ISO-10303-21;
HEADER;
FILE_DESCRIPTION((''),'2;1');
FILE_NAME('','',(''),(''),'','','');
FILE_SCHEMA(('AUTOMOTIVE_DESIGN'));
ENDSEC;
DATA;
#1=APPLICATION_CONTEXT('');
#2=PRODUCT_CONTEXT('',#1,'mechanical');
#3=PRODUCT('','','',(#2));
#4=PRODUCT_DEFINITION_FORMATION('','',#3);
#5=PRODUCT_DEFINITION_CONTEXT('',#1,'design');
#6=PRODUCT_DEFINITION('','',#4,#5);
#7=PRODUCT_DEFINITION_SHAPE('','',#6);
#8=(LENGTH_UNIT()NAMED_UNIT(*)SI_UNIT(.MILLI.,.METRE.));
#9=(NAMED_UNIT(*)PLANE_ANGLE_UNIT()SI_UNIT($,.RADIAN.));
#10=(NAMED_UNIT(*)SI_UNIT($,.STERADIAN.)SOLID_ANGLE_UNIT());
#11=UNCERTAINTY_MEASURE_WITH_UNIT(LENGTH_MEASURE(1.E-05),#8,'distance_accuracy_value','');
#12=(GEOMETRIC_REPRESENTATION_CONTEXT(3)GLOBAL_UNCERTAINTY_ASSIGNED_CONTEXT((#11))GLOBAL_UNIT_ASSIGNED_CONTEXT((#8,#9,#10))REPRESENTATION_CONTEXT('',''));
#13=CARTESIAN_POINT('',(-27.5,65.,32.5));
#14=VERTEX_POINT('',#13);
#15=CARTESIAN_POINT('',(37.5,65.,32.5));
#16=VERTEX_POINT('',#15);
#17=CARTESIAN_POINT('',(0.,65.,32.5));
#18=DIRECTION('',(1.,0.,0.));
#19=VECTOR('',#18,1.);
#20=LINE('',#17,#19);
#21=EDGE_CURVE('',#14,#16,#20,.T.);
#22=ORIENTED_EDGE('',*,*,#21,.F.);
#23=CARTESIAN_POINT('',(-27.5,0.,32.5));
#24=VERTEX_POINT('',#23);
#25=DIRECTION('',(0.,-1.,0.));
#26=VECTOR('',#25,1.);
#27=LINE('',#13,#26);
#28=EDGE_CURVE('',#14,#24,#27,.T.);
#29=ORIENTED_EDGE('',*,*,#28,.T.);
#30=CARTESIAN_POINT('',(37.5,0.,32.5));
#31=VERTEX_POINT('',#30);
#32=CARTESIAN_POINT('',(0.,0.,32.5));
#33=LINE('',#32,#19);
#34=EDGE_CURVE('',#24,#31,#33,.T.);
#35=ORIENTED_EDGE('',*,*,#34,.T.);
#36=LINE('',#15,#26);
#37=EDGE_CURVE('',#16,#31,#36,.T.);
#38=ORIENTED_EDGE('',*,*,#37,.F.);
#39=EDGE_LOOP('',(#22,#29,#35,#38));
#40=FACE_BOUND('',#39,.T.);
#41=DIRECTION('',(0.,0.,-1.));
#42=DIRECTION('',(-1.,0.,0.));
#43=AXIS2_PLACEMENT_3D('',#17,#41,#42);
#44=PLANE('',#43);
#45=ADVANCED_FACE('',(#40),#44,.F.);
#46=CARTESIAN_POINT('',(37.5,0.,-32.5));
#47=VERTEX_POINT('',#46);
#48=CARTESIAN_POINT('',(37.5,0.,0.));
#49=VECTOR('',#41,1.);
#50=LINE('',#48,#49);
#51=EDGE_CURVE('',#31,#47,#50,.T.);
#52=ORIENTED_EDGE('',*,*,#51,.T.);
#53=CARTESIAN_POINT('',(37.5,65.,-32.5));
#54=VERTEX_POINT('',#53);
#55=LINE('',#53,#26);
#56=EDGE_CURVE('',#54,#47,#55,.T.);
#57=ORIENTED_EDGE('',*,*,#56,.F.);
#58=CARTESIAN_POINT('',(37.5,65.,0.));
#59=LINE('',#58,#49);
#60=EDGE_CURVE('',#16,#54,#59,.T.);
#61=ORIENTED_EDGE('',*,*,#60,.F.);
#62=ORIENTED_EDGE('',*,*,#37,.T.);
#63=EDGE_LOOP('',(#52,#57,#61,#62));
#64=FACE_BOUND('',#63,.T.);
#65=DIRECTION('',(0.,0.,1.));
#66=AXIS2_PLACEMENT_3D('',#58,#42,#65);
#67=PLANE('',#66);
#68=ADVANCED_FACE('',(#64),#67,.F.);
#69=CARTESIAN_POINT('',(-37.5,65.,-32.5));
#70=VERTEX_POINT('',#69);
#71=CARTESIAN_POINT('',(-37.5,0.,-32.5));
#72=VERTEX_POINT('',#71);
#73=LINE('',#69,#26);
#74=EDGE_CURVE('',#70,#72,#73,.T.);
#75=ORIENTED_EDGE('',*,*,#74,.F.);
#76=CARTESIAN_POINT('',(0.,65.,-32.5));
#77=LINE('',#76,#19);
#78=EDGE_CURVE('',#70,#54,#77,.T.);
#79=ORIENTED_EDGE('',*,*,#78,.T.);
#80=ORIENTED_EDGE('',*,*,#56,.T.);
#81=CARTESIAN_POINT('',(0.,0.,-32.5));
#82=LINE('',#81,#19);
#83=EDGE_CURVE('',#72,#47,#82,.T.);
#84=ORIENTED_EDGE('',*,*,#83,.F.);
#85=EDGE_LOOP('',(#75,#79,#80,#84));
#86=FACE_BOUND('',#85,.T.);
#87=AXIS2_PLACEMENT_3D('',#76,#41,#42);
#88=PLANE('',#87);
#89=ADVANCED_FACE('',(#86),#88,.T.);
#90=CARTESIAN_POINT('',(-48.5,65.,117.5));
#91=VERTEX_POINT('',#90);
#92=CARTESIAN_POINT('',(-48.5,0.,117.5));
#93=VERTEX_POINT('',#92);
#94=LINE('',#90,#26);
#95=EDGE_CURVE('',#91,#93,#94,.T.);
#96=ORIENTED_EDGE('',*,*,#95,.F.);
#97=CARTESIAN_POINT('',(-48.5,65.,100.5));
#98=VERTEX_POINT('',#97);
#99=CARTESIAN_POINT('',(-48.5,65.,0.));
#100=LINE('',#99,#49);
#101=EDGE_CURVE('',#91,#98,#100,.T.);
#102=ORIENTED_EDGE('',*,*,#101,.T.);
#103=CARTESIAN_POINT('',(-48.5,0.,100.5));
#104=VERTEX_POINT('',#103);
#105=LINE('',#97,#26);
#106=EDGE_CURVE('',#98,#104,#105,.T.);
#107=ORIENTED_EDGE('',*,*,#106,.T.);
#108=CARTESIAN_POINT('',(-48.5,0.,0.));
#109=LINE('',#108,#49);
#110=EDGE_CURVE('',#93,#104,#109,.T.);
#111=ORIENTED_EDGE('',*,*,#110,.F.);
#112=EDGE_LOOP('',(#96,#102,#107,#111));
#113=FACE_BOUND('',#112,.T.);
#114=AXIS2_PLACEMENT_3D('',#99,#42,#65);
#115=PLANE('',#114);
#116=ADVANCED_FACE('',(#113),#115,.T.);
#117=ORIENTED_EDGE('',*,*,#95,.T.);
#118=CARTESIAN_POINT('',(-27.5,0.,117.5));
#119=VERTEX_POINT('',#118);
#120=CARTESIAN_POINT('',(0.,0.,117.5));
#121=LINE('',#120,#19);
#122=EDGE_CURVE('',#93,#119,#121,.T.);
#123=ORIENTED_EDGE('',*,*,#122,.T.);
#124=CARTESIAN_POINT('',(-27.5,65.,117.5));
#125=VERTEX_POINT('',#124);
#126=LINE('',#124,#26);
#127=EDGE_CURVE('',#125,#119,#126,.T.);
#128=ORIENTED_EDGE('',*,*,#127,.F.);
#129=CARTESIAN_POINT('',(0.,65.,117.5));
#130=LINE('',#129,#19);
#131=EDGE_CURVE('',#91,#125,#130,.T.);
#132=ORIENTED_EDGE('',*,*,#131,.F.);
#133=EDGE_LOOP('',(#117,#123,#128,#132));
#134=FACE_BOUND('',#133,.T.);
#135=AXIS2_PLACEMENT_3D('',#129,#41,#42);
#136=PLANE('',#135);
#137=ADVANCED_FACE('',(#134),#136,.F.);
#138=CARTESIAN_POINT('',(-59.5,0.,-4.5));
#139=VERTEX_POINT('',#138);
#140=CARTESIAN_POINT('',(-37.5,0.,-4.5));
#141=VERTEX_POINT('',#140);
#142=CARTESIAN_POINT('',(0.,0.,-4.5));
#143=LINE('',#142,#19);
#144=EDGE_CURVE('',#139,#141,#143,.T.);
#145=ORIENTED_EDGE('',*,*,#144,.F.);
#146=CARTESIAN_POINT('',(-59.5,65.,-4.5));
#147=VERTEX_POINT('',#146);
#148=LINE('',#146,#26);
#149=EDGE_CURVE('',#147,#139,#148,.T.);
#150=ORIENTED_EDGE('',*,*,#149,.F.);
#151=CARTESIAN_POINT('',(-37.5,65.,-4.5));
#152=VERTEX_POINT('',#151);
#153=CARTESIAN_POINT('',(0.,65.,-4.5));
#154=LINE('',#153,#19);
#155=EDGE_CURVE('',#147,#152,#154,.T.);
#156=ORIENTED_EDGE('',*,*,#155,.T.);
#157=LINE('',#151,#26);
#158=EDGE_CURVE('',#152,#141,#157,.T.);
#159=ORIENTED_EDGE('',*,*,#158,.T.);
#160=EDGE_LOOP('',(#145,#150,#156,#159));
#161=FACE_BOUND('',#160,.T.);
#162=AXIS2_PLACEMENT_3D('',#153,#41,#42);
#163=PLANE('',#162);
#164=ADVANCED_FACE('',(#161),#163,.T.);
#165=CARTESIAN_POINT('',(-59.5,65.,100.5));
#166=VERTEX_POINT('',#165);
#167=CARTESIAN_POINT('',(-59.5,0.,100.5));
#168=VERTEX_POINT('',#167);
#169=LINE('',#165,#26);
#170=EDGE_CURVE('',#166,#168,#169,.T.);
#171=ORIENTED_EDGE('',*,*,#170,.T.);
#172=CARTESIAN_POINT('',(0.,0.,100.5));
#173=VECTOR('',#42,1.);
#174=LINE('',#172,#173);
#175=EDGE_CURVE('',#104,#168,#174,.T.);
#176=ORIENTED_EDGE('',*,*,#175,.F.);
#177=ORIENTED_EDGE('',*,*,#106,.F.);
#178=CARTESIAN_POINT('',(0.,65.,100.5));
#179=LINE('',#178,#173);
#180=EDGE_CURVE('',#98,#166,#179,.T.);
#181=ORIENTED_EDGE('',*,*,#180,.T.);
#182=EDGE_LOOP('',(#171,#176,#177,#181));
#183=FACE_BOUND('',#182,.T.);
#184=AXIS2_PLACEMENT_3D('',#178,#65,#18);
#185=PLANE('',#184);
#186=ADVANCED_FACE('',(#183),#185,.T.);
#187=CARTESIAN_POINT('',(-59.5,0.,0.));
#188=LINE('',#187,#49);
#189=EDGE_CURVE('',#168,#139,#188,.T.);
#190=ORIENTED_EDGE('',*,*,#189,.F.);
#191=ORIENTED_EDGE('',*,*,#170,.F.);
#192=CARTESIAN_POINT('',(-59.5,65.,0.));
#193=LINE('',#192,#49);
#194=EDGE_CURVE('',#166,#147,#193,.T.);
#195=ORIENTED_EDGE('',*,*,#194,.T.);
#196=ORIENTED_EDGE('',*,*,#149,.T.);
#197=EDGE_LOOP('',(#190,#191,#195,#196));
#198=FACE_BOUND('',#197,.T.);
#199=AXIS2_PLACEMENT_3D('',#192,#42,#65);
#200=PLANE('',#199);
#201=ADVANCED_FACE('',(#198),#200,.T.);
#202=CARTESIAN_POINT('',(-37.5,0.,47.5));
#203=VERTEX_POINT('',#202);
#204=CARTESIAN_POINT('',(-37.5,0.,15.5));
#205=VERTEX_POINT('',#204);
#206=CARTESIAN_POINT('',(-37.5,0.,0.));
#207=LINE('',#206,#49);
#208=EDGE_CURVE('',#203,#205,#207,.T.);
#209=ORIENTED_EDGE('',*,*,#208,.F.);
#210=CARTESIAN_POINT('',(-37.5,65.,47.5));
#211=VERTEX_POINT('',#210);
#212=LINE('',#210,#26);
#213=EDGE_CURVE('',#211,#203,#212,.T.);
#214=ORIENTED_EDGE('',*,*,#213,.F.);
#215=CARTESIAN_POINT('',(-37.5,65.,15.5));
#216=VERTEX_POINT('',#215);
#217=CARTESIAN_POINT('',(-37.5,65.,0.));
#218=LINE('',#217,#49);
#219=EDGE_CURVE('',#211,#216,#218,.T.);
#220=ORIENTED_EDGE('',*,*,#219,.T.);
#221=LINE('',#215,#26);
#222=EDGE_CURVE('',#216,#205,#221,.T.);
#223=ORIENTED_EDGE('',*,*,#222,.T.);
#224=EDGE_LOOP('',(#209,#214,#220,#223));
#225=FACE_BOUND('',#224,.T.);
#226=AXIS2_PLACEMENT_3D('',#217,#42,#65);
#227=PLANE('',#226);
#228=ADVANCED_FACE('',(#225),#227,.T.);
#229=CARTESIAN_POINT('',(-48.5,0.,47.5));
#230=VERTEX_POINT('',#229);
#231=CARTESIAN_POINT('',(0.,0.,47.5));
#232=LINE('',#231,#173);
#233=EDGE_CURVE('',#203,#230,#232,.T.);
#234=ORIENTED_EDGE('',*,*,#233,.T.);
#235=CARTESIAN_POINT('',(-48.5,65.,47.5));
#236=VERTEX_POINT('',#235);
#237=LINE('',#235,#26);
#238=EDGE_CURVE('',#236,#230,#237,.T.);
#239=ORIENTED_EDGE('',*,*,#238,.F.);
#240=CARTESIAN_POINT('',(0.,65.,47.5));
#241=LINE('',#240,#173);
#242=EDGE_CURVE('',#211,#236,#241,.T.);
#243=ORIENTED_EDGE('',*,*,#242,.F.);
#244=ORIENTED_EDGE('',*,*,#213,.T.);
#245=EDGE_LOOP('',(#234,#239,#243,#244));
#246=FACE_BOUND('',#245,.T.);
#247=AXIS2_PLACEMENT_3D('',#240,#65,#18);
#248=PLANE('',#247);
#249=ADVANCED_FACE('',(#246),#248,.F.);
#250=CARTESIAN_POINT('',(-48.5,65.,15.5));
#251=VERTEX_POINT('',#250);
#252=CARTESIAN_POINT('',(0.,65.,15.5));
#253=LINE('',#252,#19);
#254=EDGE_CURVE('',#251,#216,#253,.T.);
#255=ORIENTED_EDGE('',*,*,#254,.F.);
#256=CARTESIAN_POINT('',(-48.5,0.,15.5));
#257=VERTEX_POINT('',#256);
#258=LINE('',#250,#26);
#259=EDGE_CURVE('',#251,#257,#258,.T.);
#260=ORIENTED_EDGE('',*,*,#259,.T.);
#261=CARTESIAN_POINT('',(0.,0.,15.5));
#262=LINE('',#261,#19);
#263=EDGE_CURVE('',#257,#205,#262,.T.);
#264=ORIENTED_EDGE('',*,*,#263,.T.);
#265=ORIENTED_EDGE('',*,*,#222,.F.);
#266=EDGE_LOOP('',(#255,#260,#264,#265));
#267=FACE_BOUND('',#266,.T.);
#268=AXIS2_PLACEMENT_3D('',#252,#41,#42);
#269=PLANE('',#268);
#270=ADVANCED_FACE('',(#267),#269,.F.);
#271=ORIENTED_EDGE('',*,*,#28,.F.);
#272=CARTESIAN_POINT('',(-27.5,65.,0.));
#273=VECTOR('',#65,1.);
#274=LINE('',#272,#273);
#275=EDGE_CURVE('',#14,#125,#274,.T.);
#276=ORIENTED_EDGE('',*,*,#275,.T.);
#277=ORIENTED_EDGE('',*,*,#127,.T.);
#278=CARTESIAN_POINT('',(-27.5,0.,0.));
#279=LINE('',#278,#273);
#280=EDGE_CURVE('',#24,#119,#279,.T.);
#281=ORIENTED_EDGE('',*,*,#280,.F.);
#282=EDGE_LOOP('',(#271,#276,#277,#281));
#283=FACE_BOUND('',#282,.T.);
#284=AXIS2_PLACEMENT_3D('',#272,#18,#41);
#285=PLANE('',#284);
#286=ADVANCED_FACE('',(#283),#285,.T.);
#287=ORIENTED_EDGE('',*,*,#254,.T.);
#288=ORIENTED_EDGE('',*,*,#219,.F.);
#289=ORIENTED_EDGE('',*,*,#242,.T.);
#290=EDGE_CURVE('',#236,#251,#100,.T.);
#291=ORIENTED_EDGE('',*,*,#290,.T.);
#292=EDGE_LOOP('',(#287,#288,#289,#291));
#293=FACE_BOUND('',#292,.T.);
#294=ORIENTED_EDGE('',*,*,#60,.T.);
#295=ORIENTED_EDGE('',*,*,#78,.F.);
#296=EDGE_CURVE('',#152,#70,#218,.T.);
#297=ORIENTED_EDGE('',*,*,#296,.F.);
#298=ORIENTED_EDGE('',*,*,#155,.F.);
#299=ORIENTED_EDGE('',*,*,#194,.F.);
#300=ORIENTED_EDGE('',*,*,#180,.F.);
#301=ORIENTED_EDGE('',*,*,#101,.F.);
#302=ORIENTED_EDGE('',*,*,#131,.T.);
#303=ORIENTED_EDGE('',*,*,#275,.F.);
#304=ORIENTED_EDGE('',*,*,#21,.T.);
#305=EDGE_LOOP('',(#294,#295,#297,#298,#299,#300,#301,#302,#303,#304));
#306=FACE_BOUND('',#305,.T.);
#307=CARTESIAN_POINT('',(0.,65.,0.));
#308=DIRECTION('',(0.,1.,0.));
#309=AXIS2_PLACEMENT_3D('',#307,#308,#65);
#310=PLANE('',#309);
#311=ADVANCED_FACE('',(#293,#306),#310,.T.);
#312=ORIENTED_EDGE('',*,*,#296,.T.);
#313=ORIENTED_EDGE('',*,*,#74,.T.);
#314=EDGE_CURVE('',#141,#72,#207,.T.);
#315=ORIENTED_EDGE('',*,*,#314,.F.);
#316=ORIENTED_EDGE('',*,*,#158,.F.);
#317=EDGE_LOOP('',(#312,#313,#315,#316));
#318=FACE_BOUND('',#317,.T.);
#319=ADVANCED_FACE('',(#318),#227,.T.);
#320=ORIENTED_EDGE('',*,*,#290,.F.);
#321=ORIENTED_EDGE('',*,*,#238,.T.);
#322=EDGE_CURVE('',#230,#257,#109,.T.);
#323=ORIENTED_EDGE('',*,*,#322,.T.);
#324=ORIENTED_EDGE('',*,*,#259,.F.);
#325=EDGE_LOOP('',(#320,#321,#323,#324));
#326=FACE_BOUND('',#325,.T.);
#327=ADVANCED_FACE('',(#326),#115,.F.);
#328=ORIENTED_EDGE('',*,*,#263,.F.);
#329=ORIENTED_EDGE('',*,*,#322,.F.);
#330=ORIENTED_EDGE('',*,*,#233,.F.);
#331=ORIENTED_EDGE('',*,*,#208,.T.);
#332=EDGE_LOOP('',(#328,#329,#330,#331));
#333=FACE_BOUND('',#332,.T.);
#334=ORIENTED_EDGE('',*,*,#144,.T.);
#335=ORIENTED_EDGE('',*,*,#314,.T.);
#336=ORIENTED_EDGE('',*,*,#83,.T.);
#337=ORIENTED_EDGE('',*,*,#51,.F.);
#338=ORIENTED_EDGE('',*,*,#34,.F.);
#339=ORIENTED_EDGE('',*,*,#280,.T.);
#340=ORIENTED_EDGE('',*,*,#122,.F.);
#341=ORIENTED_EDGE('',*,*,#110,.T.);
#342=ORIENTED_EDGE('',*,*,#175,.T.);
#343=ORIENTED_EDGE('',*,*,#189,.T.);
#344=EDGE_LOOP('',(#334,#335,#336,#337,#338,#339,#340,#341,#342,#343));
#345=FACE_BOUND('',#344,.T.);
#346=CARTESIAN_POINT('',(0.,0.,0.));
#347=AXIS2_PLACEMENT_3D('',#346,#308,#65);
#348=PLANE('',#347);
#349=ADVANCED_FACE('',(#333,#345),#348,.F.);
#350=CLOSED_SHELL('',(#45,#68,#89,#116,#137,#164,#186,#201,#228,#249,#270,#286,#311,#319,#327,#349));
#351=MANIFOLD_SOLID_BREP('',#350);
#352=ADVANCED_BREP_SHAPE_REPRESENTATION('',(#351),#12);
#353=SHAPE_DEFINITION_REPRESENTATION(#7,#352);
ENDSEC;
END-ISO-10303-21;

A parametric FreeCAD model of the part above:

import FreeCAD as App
import Part
import Sketcher
from FreeCAD import Vector
Q = App.Units.Quantity


def add_polygon(sketch, points):
    """Adds a closed chain of lines whose ends are joined by coincident constraints."""
    first, n = sketch.GeometryCount, len(points)
    for a, b in zip(points, points[1:] + points[:1]):
        sketch.addGeometry(Part.LineSegment(App.Vector(*a, 0), App.Vector(*b, 0)), False)
    for i in range(n):
        sketch.addConstraint(Sketcher.Constraint("Coincident", first + i, 2, first + (i + 1) % n, 1))

doc = App.newDocument("Part")
body = doc.addObject("PartDesign::Body", "Body")

sketch1 = body.newObject("Sketcher::SketchObject", "Sketch")
sketch1.AttachmentSupport = (doc.getObject("XZ_Plane"), [""])
sketch1.MapMode = "FlatFace"
add_polygon(sketch1, [(-28, 32), (38, 32), (38, -32), (-38, -32), (-38, -4), (-60, -4), (-60, 100), (-48, 100), (-48, 118), (-28, 118)])
add_polygon(sketch1, [(-38, 16), (-38, 48), (-48, 48), (-48, 16)])
sketch1.addConstraint([
    Sketcher.Constraint("Horizontal", 0),
    Sketcher.Constraint("Vertical", 1),
    Sketcher.Constraint("Horizontal", 2),
    Sketcher.Constraint("Vertical", 3),
    Sketcher.Constraint("Horizontal", 4),
    Sketcher.Constraint("Vertical", 5),
    Sketcher.Constraint("Horizontal", 6),
    Sketcher.Constraint("Vertical", 7),
    Sketcher.Constraint("Horizontal", 8),
    Sketcher.Constraint("Vertical", 9),
    Sketcher.Constraint("Vertical", 10),
    Sketcher.Constraint("Horizontal", 11),
    Sketcher.Constraint("Vertical", 12),
    Sketcher.Constraint("Horizontal", 13),
    Sketcher.Constraint("Symmetric", 0, 2, 2, 2, -1, 1),
    Sketcher.Constraint("Vertical", 3, 2, 10, 2),
    Sketcher.Constraint("Vertical", 7, 2, 11, 2),
    Sketcher.Constraint("Equal", 6, 11),
    Sketcher.Constraint("Equal", 0, 1),
    Sketcher.Constraint("DistanceX", 0, 1, 0, 2, Q("65 mm")),
    Sketcher.Constraint("DistanceX", 2, 2, 2, 1, Q("75 mm")),
    Sketcher.Constraint("DistanceX", 4, 2, 4, 1, Q("22 mm")),
    Sketcher.Constraint("DistanceY", 3, 1, 3, 2, Q("28 mm")),
    Sketcher.Constraint("DistanceY", 5, 1, 5, 2, Q("105 mm")),
    Sketcher.Constraint("DistanceY", 7, 1, 7, 2, Q("17 mm")),
    Sketcher.Constraint("DistanceY", 10, 1, 10, 2, Q("32 mm")),
    Sketcher.Constraint("DistanceY", 9, 2, 10, 2, Q("15 mm")),
])
pad1 = body.newObject("PartDesign::Pad", "Pad")
pad1.Profile = sketch1
pad1.Length = 65
pad1.Reversed = True

doc.recompute()
